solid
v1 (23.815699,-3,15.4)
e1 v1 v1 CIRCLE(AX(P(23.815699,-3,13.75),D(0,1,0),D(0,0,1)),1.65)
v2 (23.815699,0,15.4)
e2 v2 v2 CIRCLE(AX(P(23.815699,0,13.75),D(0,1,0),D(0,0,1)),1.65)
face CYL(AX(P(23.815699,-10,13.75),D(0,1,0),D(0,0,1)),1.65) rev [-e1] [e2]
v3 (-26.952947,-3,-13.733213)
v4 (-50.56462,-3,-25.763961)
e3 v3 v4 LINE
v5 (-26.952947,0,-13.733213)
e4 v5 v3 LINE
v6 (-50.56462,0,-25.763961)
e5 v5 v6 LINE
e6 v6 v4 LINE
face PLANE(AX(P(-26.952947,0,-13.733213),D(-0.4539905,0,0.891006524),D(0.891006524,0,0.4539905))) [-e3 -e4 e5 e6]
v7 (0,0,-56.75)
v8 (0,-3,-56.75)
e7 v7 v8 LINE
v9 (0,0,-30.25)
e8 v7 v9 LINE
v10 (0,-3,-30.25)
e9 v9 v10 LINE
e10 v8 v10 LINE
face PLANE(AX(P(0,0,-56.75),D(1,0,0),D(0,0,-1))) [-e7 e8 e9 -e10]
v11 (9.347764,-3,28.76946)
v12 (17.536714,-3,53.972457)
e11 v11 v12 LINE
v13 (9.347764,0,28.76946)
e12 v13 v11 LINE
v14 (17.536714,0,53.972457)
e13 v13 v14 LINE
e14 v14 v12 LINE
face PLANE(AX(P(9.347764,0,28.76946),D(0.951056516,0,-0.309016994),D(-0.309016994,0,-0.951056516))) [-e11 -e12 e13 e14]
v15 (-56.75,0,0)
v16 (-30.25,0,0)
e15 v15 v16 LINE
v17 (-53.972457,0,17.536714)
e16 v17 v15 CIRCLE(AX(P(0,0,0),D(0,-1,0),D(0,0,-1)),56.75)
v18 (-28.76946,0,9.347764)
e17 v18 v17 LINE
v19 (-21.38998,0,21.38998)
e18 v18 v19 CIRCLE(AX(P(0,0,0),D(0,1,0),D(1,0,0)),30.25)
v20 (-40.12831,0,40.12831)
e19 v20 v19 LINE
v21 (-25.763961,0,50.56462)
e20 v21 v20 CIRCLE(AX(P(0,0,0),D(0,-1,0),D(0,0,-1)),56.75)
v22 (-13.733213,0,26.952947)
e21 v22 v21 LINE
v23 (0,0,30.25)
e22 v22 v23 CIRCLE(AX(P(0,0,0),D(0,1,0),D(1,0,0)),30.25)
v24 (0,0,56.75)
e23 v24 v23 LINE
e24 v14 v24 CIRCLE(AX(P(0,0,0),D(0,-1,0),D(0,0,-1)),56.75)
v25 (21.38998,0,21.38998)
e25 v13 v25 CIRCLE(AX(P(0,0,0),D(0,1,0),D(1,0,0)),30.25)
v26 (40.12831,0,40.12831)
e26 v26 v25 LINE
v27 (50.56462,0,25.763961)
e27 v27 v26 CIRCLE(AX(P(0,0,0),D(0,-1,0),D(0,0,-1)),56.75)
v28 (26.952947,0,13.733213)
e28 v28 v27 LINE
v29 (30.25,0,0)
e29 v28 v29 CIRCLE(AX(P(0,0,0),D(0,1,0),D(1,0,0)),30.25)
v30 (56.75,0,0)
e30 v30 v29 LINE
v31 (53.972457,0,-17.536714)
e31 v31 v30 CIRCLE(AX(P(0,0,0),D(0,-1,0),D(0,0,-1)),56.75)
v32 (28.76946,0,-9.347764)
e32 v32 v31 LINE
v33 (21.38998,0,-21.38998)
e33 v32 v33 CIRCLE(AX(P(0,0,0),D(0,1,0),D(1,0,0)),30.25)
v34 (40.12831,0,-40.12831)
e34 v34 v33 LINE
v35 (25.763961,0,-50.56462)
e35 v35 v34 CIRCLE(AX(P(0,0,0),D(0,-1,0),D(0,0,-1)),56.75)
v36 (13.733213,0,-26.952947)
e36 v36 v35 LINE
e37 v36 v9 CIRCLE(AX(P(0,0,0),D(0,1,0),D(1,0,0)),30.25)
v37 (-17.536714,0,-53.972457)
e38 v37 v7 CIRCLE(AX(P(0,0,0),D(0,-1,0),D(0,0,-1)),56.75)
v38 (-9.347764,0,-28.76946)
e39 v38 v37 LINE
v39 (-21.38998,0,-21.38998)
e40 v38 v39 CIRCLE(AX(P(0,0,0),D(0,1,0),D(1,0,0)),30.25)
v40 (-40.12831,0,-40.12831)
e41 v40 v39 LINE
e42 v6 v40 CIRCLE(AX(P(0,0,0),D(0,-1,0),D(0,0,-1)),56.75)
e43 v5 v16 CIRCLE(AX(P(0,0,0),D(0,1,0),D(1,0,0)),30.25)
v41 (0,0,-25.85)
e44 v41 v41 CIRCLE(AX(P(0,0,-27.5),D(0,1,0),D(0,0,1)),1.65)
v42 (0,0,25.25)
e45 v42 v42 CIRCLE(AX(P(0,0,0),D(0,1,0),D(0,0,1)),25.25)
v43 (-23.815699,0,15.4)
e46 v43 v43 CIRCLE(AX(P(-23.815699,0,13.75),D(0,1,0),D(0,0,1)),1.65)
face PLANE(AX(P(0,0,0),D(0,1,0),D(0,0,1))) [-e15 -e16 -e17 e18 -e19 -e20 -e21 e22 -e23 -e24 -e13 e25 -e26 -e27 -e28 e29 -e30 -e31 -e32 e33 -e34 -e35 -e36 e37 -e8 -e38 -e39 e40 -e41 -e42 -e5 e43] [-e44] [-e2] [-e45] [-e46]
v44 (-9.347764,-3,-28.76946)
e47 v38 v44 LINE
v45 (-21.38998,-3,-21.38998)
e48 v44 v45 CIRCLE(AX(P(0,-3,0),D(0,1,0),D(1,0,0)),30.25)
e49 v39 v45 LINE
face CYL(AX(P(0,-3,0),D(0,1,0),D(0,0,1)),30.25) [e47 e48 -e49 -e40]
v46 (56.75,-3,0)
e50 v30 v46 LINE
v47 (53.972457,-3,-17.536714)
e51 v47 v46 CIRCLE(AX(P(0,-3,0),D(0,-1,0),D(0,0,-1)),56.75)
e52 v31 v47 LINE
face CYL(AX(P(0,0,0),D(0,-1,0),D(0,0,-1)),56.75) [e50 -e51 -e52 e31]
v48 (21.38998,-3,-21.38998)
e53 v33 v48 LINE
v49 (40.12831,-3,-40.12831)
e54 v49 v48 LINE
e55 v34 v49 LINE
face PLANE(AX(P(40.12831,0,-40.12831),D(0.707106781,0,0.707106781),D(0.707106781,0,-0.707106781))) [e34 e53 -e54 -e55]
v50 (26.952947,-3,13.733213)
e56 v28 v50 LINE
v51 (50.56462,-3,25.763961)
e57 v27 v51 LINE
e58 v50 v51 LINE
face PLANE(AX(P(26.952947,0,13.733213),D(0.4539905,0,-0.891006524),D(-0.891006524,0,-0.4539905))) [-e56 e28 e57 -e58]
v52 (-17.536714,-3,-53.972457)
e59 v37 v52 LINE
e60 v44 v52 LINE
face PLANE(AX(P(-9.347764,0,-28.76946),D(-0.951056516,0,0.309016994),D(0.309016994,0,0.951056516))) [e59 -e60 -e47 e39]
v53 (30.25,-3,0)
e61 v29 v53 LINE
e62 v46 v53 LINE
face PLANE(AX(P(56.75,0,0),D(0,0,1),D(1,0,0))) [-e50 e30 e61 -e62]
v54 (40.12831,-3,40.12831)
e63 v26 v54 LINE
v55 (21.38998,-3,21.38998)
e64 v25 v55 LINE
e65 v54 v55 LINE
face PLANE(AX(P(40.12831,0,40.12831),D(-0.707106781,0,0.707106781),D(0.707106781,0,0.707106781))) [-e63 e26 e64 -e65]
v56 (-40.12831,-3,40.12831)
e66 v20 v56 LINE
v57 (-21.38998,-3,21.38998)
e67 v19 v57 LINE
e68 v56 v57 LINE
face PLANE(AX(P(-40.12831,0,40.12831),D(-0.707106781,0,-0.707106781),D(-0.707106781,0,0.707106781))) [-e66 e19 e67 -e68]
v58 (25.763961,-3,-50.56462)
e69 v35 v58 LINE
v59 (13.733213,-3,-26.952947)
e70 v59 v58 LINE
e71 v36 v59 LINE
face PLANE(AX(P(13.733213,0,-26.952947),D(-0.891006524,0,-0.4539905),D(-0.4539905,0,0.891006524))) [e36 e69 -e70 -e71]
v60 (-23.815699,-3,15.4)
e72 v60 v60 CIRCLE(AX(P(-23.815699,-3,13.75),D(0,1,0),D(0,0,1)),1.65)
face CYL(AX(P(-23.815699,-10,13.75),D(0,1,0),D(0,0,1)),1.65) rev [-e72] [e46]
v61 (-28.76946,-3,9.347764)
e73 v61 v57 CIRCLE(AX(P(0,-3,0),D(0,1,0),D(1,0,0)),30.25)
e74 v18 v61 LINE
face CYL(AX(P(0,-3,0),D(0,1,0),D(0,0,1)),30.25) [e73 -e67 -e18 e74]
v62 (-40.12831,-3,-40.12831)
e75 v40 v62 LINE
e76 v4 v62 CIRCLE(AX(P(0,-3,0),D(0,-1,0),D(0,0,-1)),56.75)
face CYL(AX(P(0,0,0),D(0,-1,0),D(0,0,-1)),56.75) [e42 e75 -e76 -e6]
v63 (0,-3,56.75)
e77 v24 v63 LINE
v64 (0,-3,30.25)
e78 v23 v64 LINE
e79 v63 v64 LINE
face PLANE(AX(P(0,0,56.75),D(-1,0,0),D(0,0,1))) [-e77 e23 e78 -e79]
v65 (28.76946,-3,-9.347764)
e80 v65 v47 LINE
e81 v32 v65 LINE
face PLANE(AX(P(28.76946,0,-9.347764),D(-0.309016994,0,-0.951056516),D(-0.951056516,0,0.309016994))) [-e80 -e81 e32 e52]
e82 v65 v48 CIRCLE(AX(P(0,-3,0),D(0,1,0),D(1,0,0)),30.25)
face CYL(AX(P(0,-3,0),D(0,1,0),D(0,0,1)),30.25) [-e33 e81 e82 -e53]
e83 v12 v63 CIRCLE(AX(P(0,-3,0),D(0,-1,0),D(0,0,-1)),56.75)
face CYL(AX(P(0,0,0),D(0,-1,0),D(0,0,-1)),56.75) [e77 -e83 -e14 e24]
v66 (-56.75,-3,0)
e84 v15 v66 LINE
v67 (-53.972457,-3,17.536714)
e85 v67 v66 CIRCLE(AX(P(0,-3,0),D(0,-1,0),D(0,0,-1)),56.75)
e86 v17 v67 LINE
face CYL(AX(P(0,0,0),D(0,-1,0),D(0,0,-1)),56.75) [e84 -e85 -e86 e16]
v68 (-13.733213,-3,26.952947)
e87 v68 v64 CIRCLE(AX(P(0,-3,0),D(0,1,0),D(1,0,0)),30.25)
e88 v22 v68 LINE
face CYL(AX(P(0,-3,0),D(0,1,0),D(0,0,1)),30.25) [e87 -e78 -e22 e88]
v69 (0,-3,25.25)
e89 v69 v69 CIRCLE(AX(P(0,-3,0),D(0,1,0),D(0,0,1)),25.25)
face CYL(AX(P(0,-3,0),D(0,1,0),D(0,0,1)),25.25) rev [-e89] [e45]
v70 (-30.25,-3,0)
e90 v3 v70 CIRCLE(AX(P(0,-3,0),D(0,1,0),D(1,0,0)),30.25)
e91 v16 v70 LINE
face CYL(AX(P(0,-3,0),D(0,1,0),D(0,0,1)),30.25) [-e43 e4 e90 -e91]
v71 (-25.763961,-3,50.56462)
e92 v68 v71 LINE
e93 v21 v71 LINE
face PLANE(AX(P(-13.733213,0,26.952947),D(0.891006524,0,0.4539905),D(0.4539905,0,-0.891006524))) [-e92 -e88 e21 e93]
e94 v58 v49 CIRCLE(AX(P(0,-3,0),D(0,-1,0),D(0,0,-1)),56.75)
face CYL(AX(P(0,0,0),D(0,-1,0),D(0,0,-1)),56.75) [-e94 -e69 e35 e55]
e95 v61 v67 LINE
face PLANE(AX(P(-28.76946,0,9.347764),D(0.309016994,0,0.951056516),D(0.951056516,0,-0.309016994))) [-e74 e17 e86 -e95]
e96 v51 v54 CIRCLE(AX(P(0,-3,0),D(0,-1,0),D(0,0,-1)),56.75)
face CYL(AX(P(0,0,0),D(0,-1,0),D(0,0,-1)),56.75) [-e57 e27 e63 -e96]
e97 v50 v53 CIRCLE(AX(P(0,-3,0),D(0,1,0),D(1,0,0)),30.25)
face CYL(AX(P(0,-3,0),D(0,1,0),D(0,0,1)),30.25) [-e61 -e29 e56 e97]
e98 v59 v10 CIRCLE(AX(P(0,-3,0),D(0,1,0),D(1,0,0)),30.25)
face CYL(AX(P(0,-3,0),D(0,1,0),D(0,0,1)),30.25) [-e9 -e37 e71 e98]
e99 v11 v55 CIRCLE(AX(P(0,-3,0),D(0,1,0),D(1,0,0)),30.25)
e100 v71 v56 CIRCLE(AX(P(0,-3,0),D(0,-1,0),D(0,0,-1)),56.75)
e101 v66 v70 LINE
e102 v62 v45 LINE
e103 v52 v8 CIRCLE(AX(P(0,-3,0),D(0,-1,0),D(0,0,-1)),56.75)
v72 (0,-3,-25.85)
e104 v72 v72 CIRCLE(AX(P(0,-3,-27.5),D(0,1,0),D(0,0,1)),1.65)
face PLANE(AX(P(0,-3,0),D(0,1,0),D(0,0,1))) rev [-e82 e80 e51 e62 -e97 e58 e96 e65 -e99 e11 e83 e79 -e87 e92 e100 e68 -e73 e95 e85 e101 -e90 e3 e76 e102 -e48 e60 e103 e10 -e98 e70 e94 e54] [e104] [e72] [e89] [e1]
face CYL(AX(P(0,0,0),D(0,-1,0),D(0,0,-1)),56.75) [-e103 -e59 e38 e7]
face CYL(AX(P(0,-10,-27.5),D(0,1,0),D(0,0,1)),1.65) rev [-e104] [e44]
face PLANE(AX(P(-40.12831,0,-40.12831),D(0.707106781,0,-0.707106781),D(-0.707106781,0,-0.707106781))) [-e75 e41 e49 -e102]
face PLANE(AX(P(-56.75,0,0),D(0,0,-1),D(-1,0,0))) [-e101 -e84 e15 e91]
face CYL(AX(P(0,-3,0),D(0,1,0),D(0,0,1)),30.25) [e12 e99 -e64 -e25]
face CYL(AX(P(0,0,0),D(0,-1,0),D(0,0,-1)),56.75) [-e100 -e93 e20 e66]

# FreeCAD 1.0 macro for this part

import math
import FreeCAD as App
import Part
import Sketcher
Q = App.Units.Quantity

doc = App.newDocument("Part")
params = doc.addObject("Spreadsheet::Sheet", "Params")
for row, (alias, value) in enumerate([
    ("sketch1_diameter", "60.5 mm"),
    ("sketch1_diameter2", "50.5 mm"),
    ("pad1_length", "3 mm"),
    ("sketch2_diameter", "3.3 mm"),
    ("pocket1_length", "10 mm"),
    ("sketch3_radius", "30.25 mm"),
    ("sketch3_radius2", "56.75 mm"),
    ("pad2_length", "3 mm"),
], start=1):
    params.set(f"A{row}", alias)
    params.set(f"B{row}", "=" + value)
    params.setAlias(f"B{row}", alias)

body = doc.addObject("PartDesign::Body", "Body")

# Sketch on XZ plane
sketch1 = doc.addObject("Sketcher::SketchObject", "Sketch")
body.addObject(sketch1)
sketch1.AttachmentSupport = (doc.XZ_Plane, [""])
sketch1.MapMode = "FlatFace"
sketch1.addGeometry(Part.Circle(App.Vector(0, 0, 0), App.Vector(0, 0, 1), 30), False)
sketch1.addGeometry(Part.Circle(App.Vector(0, 0, 0), App.Vector(0, 0, 1), 25), False)
sketch1.addConstraint(Sketcher.Constraint("Coincident", 0, 3, -1, 1))
sketch1.addConstraint(Sketcher.Constraint("Coincident", 1, 3, -1, 1))
sketch1.addConstraint(Sketcher.Constraint("Diameter", 0, Q("60.5 mm")))
sketch1.addConstraint(Sketcher.Constraint("Diameter", 1, Q("50.5 mm")))
sketch1.setExpression("Constraints[2]", "Params.sketch1_diameter")
sketch1.setExpression("Constraints[3]", "Params.sketch1_diameter2")
pad1 = doc.addObject("PartDesign::Pad", "Pad")
body.addObject(pad1)
pad1.Profile = sketch1
pad1.setExpression("Length", "Params.pad1_length")

# Sketch on XZ plane
sketch2 = doc.addObject("Sketcher::SketchObject", "Sketch001")
body.addObject(sketch2)
sketch2.AttachmentSupport = (doc.XZ_Plane, [""])
sketch2.MapMode = "FlatFace"
sketch2.addGeometry(Part.Circle(App.Vector(0, -27.5, 0), App.Vector(0, 0, 1), 1.6), False)
sketch2.addGeometry(Part.Circle(App.Vector(23.8, 13.8, 0), App.Vector(0, 0, 1), 1.6), False)
sketch2.addGeometry(Part.Circle(App.Vector(-23.8, 13.8, 0), App.Vector(0, 0, 1), 1.6), False)
sketch2.addConstraint(Sketcher.Constraint("Equal", 0, 1))
sketch2.addConstraint(Sketcher.Constraint("Equal", 1, 2))
sketch2.addConstraint(Sketcher.Constraint("Symmetric", 1, 3, 2, 3, -2))
sketch2.addConstraint(Sketcher.Constraint("PointOnObject", 0, 3, -2))
sketch2.addConstraint(Sketcher.Constraint("Diameter", 0, Q("3.3 mm")))
sketch2.addConstraint(Sketcher.Constraint("DistanceY", 0, 3, -1, 1, Q("27.5 mm")))
sketch2.addConstraint(Sketcher.Constraint("DistanceY", -1, 1, 1, 3, Q("13.75 mm")))
sketch2.addConstraint(Sketcher.Constraint("DistanceX", -1, 1, 1, 3, Q("23.815699 mm")))
sketch2.setExpression("Constraints[4]", "Params.sketch2_diameter")
pocket1 = doc.addObject("PartDesign::Pocket", "Pocket")
body.addObject(pocket1)
pocket1.Profile = sketch2
pocket1.setExpression("Length", "Params.pocket1_length")
pocket1.Reversed = True

# Sketch on XZ plane
sketch3 = doc.addObject("Sketcher::SketchObject", "Sketch002")
body.addObject(sketch3)
sketch3.AttachmentSupport = (doc.XZ_Plane, [""])
sketch3.MapMode = "FlatFace"
sketch3.AttachmentOffset = App.Placement(App.Vector(0, 0, 3), App.Rotation())
sketch3.addGeometry(Part.LineSegment(App.Vector(0, 57, 0), App.Vector(0, 30, 0)), False)
sketch3.addGeometry(Part.ArcOfCircle(Part.Circle(App.Vector(0, 0, 0), App.Vector(0, 0, 1), 30), math.radians(72), math.radians(90)), False)
sketch3.addGeometry(Part.LineSegment(App.Vector(9, 29, 0), App.Vector(18, 54, 0)), False)
sketch3.addGeometry(Part.ArcOfCircle(Part.Circle(App.Vector(0, 0, 0), App.Vector(0, 0, 1), 57), math.radians(72), math.radians(90)), False)
sketch3.addGeometry(Part.LineSegment(App.Vector(40, 40, 0), App.Vector(21, 21, 0)), False)
sketch3.addGeometry(Part.ArcOfCircle(Part.Circle(App.Vector(0, 0, 0), App.Vector(0, 0, 1), 30), math.radians(27), math.radians(45)), False)
sketch3.addGeometry(Part.LineSegment(App.Vector(27, 14, 0), App.Vector(51, 26, 0)), False)
sketch3.addGeometry(Part.ArcOfCircle(Part.Circle(App.Vector(0, 0, 0), App.Vector(0, 0, 1), 57), math.radians(27), math.radians(45)), False)
sketch3.addGeometry(Part.LineSegment(App.Vector(57, 0, 0), App.Vector(30, 0, 0)), False)
sketch3.addGeometry(Part.ArcOfCircle(Part.Circle(App.Vector(0, 0, 0), App.Vector(0, 0, 1), 30), math.radians(-18), math.radians(0)), False)
sketch3.addGeometry(Part.LineSegment(App.Vector(29, -9, 0), App.Vector(54, -18, 0)), False)
sketch3.addGeometry(Part.ArcOfCircle(Part.Circle(App.Vector(0, 0, 0), App.Vector(0, 0, 1), 57), math.radians(-18), math.radians(0)), False)
sketch3.addGeometry(Part.LineSegment(App.Vector(40, -40, 0), App.Vector(21, -21, 0)), False)
sketch3.addGeometry(Part.ArcOfCircle(Part.Circle(App.Vector(0, 0, 0), App.Vector(0, 0, 1), 30), math.radians(-63), math.radians(-45)), False)
sketch3.addGeometry(Part.LineSegment(App.Vector(14, -27, 0), App.Vector(26, -51, 0)), False)
sketch3.addGeometry(Part.ArcOfCircle(Part.Circle(App.Vector(0, 0, 0), App.Vector(0, 0, 1), 57), math.radians(-63), math.radians(-45)), False)
sketch3.addGeometry(Part.LineSegment(App.Vector(0, -57, 0), App.Vector(0, -30, 0)), False)
sketch3.addGeometry(Part.ArcOfCircle(Part.Circle(App.Vector(0, 0, 0), App.Vector(0, 0, 1), 30), math.radians(-108), math.radians(-90)), False)
sketch3.addGeometry(Part.LineSegment(App.Vector(-9, -29, 0), App.Vector(-18, -54, 0)), False)
sketch3.addGeometry(Part.ArcOfCircle(Part.Circle(App.Vector(0, 0, 0), App.Vector(0, 0, 1), 57), math.radians(-108), math.radians(-90)), False)
sketch3.addGeometry(Part.LineSegment(App.Vector(-40, -40, 0), App.Vector(-21, -21, 0)), False)
sketch3.addGeometry(Part.ArcOfCircle(Part.Circle(App.Vector(0, 0, 0), App.Vector(0, 0, 1), 30), math.radians(-153), math.radians(-135)), False)
sketch3.addGeometry(Part.LineSegment(App.Vector(-27, -14, 0), App.Vector(-51, -26, 0)), False)
sketch3.addGeometry(Part.ArcOfCircle(Part.Circle(App.Vector(0, 0, 0), App.Vector(0, 0, 1), 57), math.radians(-153), math.radians(-135)), False)
sketch3.addGeometry(Part.LineSegment(App.Vector(-57, 0, 0), App.Vector(-30, 0, 0)), False)
sketch3.addGeometry(Part.ArcOfCircle(Part.Circle(App.Vector(0, 0, 0), App.Vector(0, 0, 1), 30), math.radians(162), math.radians(180)), False)
sketch3.addGeometry(Part.LineSegment(App.Vector(-29, 9, 0), App.Vector(-54, 18, 0)), False)
sketch3.addGeometry(Part.ArcOfCircle(Part.Circle(App.Vector(0, 0, 0), App.Vector(0, 0, 1), 57), math.radians(162), math.radians(180)), False)
sketch3.addGeometry(Part.LineSegment(App.Vector(-40, 40, 0), App.Vector(-21, 21, 0)), False)
sketch3.addGeometry(Part.ArcOfCircle(Part.Circle(App.Vector(0, 0, 0), App.Vector(0, 0, 1), 30), math.radians(117), math.radians(135)), False)
sketch3.addGeometry(Part.LineSegment(App.Vector(-14, 27, 0), App.Vector(-26, 51, 0)), False)
sketch3.addGeometry(Part.ArcOfCircle(Part.Circle(App.Vector(0, 0, 0), App.Vector(0, 0, 1), 57), math.radians(117), math.radians(135)), False)
sketch3.addConstraint(Sketcher.Constraint("Coincident", 0, 2, 1, 2))
sketch3.addConstraint(Sketcher.Constraint("Coincident", 1, 1, 2, 1))
sketch3.addConstraint(Sketcher.Constraint("Coincident", 2, 2, 3, 1))
sketch3.addConstraint(Sketcher.Constraint("Coincident", 3, 2, 0, 1))
sketch3.addConstraint(Sketcher.Constraint("Coincident", 4, 2, 5, 2))
sketch3.addConstraint(Sketcher.Constraint("Coincident", 5, 1, 6, 1))
sketch3.addConstraint(Sketcher.Constraint("Coincident", 6, 2, 7, 1))
sketch3.addConstraint(Sketcher.Constraint("Coincident", 7, 2, 4, 1))
sketch3.addConstraint(Sketcher.Constraint("Coincident", 8, 2, 9, 2))
sketch3.addConstraint(Sketcher.Constraint("Coincident", 9, 1, 10, 1))
sketch3.addConstraint(Sketcher.Constraint("Coincident", 10, 2, 11, 1))
sketch3.addConstraint(Sketcher.Constraint("Coincident", 11, 2, 8, 1))
sketch3.addConstraint(Sketcher.Constraint("Coincident", 12, 2, 13, 2))
sketch3.addConstraint(Sketcher.Constraint("Coincident", 13, 1, 14, 1))
sketch3.addConstraint(Sketcher.Constraint("Coincident", 14, 2, 15, 1))
sketch3.addConstraint(Sketcher.Constraint("Coincident", 15, 2, 12, 1))
sketch3.addConstraint(Sketcher.Constraint("Coincident", 16, 2, 17, 2))
sketch3.addConstraint(Sketcher.Constraint("Coincident", 17, 1, 18, 1))
sketch3.addConstraint(Sketcher.Constraint("Coincident", 18, 2, 19, 1))
sketch3.addConstraint(Sketcher.Constraint("Coincident", 19, 2, 16, 1))
sketch3.addConstraint(Sketcher.Constraint("Coincident", 20, 2, 21, 2))
sketch3.addConstraint(Sketcher.Constraint("Coincident", 21, 1, 22, 1))
sketch3.addConstraint(Sketcher.Constraint("Coincident", 22, 2, 23, 1))
sketch3.addConstraint(Sketcher.Constraint("Coincident", 23, 2, 20, 1))
sketch3.addConstraint(Sketcher.Constraint("Coincident", 24, 2, 25, 2))
sketch3.addConstraint(Sketcher.Constraint("Coincident", 25, 1, 26, 1))
sketch3.addConstraint(Sketcher.Constraint("Coincident", 26, 2, 27, 1))
sketch3.addConstraint(Sketcher.Constraint("Coincident", 27, 2, 24, 1))
sketch3.addConstraint(Sketcher.Constraint("Coincident", 28, 2, 29, 2))
sketch3.addConstraint(Sketcher.Constraint("Coincident", 29, 1, 30, 1))
sketch3.addConstraint(Sketcher.Constraint("Coincident", 30, 2, 31, 1))
sketch3.addConstraint(Sketcher.Constraint("Coincident", 31, 2, 28, 1))
sketch3.addConstraint(Sketcher.Constraint("Vertical", 0))
sketch3.addConstraint(Sketcher.Constraint("Horizontal", 8))
sketch3.addConstraint(Sketcher.Constraint("Vertical", 16))
sketch3.addConstraint(Sketcher.Constraint("Horizontal", 24))
sketch3.addConstraint(Sketcher.Constraint("Coincident", 1, 3, -1, 1))
sketch3.addConstraint(Sketcher.Constraint("Coincident", 3, 3, -1, 1))
sketch3.addConstraint(Sketcher.Constraint("Coincident", 5, 3, -1, 1))
sketch3.addConstraint(Sketcher.Constraint("Coincident", 7, 3, -1, 1))
sketch3.addConstraint(Sketcher.Constraint("Coincident", 9, 3, -1, 1))
sketch3.addConstraint(Sketcher.Constraint("Coincident", 11, 3, -1, 1))
sketch3.addConstraint(Sketcher.Constraint("Coincident", 13, 3, -1, 1))
sketch3.addConstraint(Sketcher.Constraint("Coincident", 15, 3, -1, 1))
sketch3.addConstraint(Sketcher.Constraint("Coincident", 17, 3, -1, 1))
sketch3.addConstraint(Sketcher.Constraint("Coincident", 19, 3, -1, 1))
sketch3.addConstraint(Sketcher.Constraint("Coincident", 21, 3, -1, 1))
sketch3.addConstraint(Sketcher.Constraint("Coincident", 23, 3, -1, 1))
sketch3.addConstraint(Sketcher.Constraint("Coincident", 25, 3, -1, 1))
sketch3.addConstraint(Sketcher.Constraint("Coincident", 27, 3, -1, 1))
sketch3.addConstraint(Sketcher.Constraint("Coincident", 29, 3, -1, 1))
sketch3.addConstraint(Sketcher.Constraint("Coincident", 31, 3, -1, 1))
sketch3.addConstraint(Sketcher.Constraint("Equal", 1, 5))
sketch3.addConstraint(Sketcher.Constraint("Equal", 3, 7))
sketch3.addConstraint(Sketcher.Constraint("Equal", 5, 9))
sketch3.addConstraint(Sketcher.Constraint("Equal", 7, 11))
sketch3.addConstraint(Sketcher.Constraint("Equal", 9, 13))
sketch3.addConstraint(Sketcher.Constraint("Equal", 11, 15))
sketch3.addConstraint(Sketcher.Constraint("Equal", 13, 17))
sketch3.addConstraint(Sketcher.Constraint("Equal", 15, 19))
sketch3.addConstraint(Sketcher.Constraint("Equal", 17, 21))
sketch3.addConstraint(Sketcher.Constraint("Equal", 19, 23))
sketch3.addConstraint(Sketcher.Constraint("Equal", 21, 25))
sketch3.addConstraint(Sketcher.Constraint("Equal", 23, 27))
sketch3.addConstraint(Sketcher.Constraint("Equal", 25, 29))
sketch3.addConstraint(Sketcher.Constraint("Equal", 27, 31))
sketch3.addConstraint(Sketcher.Constraint("PointOnObject", 0, 2, -2))
sketch3.addConstraint(Sketcher.Constraint("PointOnObject", 8, 2, -1))
sketch3.addConstraint(Sketcher.Constraint("PointOnObject", 16, 2, -2))
sketch3.addConstraint(Sketcher.Constraint("PointOnObject", 24, 2, -1))
sketch3.addConstraint(Sketcher.Constraint("Perpendicular", 2, 10))
sketch3.addConstraint(Sketcher.Constraint("Perpendicular", 4, 12))
sketch3.addConstraint(Sketcher.Constraint("Perpendicular", 6, 14))
sketch3.addConstraint(Sketcher.Constraint("Perpendicular", 10, 18))
sketch3.addConstraint(Sketcher.Constraint("Perpendicular", 12, 20))
sketch3.addConstraint(Sketcher.Constraint("Perpendicular", 14, 22))
sketch3.addConstraint(Sketcher.Constraint("Perpendicular", 18, 26))
sketch3.addConstraint(Sketcher.Constraint("Perpendicular", 20, 28))
sketch3.addConstraint(Sketcher.Constraint("Perpendicular", 22, 30))
sketch3.addConstraint(Sketcher.Constraint("Horizontal", 12, 2, 20, 2))
sketch3.addConstraint(Sketcher.Constraint("Horizontal", 15, 2, 23, 2))
sketch3.addConstraint(Sketcher.Constraint("Horizontal", 4, 2, 28, 2))
sketch3.addConstraint(Sketcher.Constraint("Vertical", 4, 2, 12, 2))
sketch3.addConstraint(Sketcher.Constraint("Angle", 2, Q("72 deg")))
sketch3.addConstraint(Sketcher.Constraint("Angle", 6, Q("27 deg")))
sketch3.addConstraint(Sketcher.Constraint("Radius", 1, Q("30.25 mm")))
sketch3.addConstraint(Sketcher.Constraint("Radius", 3, Q("56.75 mm")))
sketch3.addConstraint(Sketcher.Constraint("DistanceY", 6, 2, 1, 1, Q("3.005499 mm")))
sketch3.addConstraint(Sketcher.Constraint("DistanceX", 14, 2, 9, 1, Q("3.005499 mm")))
sketch3.addConstraint(Sketcher.Constraint("DistanceY", 17, 1, 22, 2, Q("3.005499 mm")))
sketch3.addConstraint(Sketcher.Constraint("DistanceY", -1, 1, 1, 1, Q("28.76946 mm")))
sketch3.addConstraint(Sketcher.Constraint("DistanceX", -1, 1, 4, 2, Q("21.38998 mm")))
sketch3.addConstraint(Sketcher.Constraint("DistanceX", -1, 1, 9, 1, Q("28.76946 mm")))
sketch3.addConstraint(Sketcher.Constraint("DistanceY", 17, 1, -1, 1, Q("28.76946 mm")))
sketch3.addConstraint(Sketcher.Constraint("DistanceX", 25, 1, -1, 1, Q("28.76946 mm")))
sketch3.addConstraint(Sketcher.Constraint("DistanceX", 30, 2, -1, 1, Q("25.763961 mm")))
sketch3.setExpression("Constraints[85]", "Params.sketch3_radius")
sketch3.setExpression("Constraints[86]", "Params.sketch3_radius2")
pad2 = doc.addObject("PartDesign::Pad", "Pad001")
body.addObject(pad2)
pad2.Profile = sketch3
pad2.setExpression("Length", "Params.pad2_length")
pad2.Reversed = True

doc.recompute()
